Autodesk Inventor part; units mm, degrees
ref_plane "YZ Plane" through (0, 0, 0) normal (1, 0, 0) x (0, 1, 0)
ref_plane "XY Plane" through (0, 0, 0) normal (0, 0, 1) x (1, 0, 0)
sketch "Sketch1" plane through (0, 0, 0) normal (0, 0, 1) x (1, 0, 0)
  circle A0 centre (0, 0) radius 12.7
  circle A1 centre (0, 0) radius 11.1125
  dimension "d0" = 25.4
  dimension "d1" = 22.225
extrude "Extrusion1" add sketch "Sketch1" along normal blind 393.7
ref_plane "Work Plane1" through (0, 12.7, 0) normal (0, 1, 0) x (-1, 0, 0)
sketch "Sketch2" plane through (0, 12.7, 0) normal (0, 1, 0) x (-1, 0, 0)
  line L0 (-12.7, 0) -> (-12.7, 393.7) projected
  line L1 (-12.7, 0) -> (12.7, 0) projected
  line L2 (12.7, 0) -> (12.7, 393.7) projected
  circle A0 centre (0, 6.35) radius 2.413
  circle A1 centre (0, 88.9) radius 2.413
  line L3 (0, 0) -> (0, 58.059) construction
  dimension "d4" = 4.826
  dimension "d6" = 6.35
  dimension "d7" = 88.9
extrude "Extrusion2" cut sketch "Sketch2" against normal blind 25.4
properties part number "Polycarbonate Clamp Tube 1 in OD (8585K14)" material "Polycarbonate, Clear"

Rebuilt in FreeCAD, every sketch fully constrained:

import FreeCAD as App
import Part
import Sketcher
from FreeCAD import Vector
Q = App.Units.Quantity

doc = App.newDocument("Part")
body = doc.addObject("PartDesign::Body", "Body")

# Sketch on XY plane
sketch1 = body.newObject("Sketcher::SketchObject", "Sketch")
sketch1.AttachmentSupport = (doc.getObject("XY_Plane"), [""])
sketch1.MapMode = "FlatFace"
sketch1.addGeometry(Part.Circle(Vector(0, 0, 0), Vector(0, 0, 1), 12.7), False)
sketch1.addGeometry(Part.Circle(Vector(0, 0, 0), Vector(0, 0, 1), 11.1125), False)
sketch1.addConstraint(Sketcher.Constraint("Coincident", 0, 3, -1, 1))
sketch1.addConstraint(Sketcher.Constraint("Coincident", 1, 3, -1, 1))
sketch1.addConstraint(Sketcher.Constraint("Diameter", 0, Q("1 in")))
sketch1.addConstraint(Sketcher.Constraint("Diameter", 1, Q("0.875 in")))
pad1 = body.newObject("PartDesign::Pad", "Pad")
pad1.Profile = sketch1
pad1.Length = Q("15.5 in")

# Sketch on XZ plane
sketch2 = body.newObject("Sketcher::SketchObject", "Sketch001")
sketch2.AttachmentSupport = (doc.getObject("XZ_Plane"), [""])
sketch2.MapMode = "FlatFace"
sketch2.AttachmentOffset = App.Placement(Vector(0, 0, -0.5 * 25.4), App.Rotation())
sketch2.addGeometry(Part.Circle(Vector(0, 6.35, 0), Vector(0, 0, 1), 2.413), False)
sketch2.addGeometry(Part.Circle(Vector(0, 88.9, 0), Vector(0, 0, 1), 2.413), False)
sketch2.addConstraint(Sketcher.Constraint("Equal", 0, 1))
sketch2.addConstraint(Sketcher.Constraint("PointOnObject", 0, 3, -2))
sketch2.addConstraint(Sketcher.Constraint("PointOnObject", 1, 3, -2))
sketch2.addConstraint(Sketcher.Constraint("Diameter", 0, Q("0.19 in")))
sketch2.addConstraint(Sketcher.Constraint("DistanceY", -1, 1, 1, 3, Q("3.5 in")))
sketch2.addConstraint(Sketcher.Constraint("DistanceY", -1, 1, 0, 3, Q("0.25 in")))
pocket1 = body.newObject("PartDesign::Pocket", "Pocket")
pocket1.Profile = sketch2
pocket1.Length = Q("1 in")
pocket1.Reversed = True

doc.recompute()
